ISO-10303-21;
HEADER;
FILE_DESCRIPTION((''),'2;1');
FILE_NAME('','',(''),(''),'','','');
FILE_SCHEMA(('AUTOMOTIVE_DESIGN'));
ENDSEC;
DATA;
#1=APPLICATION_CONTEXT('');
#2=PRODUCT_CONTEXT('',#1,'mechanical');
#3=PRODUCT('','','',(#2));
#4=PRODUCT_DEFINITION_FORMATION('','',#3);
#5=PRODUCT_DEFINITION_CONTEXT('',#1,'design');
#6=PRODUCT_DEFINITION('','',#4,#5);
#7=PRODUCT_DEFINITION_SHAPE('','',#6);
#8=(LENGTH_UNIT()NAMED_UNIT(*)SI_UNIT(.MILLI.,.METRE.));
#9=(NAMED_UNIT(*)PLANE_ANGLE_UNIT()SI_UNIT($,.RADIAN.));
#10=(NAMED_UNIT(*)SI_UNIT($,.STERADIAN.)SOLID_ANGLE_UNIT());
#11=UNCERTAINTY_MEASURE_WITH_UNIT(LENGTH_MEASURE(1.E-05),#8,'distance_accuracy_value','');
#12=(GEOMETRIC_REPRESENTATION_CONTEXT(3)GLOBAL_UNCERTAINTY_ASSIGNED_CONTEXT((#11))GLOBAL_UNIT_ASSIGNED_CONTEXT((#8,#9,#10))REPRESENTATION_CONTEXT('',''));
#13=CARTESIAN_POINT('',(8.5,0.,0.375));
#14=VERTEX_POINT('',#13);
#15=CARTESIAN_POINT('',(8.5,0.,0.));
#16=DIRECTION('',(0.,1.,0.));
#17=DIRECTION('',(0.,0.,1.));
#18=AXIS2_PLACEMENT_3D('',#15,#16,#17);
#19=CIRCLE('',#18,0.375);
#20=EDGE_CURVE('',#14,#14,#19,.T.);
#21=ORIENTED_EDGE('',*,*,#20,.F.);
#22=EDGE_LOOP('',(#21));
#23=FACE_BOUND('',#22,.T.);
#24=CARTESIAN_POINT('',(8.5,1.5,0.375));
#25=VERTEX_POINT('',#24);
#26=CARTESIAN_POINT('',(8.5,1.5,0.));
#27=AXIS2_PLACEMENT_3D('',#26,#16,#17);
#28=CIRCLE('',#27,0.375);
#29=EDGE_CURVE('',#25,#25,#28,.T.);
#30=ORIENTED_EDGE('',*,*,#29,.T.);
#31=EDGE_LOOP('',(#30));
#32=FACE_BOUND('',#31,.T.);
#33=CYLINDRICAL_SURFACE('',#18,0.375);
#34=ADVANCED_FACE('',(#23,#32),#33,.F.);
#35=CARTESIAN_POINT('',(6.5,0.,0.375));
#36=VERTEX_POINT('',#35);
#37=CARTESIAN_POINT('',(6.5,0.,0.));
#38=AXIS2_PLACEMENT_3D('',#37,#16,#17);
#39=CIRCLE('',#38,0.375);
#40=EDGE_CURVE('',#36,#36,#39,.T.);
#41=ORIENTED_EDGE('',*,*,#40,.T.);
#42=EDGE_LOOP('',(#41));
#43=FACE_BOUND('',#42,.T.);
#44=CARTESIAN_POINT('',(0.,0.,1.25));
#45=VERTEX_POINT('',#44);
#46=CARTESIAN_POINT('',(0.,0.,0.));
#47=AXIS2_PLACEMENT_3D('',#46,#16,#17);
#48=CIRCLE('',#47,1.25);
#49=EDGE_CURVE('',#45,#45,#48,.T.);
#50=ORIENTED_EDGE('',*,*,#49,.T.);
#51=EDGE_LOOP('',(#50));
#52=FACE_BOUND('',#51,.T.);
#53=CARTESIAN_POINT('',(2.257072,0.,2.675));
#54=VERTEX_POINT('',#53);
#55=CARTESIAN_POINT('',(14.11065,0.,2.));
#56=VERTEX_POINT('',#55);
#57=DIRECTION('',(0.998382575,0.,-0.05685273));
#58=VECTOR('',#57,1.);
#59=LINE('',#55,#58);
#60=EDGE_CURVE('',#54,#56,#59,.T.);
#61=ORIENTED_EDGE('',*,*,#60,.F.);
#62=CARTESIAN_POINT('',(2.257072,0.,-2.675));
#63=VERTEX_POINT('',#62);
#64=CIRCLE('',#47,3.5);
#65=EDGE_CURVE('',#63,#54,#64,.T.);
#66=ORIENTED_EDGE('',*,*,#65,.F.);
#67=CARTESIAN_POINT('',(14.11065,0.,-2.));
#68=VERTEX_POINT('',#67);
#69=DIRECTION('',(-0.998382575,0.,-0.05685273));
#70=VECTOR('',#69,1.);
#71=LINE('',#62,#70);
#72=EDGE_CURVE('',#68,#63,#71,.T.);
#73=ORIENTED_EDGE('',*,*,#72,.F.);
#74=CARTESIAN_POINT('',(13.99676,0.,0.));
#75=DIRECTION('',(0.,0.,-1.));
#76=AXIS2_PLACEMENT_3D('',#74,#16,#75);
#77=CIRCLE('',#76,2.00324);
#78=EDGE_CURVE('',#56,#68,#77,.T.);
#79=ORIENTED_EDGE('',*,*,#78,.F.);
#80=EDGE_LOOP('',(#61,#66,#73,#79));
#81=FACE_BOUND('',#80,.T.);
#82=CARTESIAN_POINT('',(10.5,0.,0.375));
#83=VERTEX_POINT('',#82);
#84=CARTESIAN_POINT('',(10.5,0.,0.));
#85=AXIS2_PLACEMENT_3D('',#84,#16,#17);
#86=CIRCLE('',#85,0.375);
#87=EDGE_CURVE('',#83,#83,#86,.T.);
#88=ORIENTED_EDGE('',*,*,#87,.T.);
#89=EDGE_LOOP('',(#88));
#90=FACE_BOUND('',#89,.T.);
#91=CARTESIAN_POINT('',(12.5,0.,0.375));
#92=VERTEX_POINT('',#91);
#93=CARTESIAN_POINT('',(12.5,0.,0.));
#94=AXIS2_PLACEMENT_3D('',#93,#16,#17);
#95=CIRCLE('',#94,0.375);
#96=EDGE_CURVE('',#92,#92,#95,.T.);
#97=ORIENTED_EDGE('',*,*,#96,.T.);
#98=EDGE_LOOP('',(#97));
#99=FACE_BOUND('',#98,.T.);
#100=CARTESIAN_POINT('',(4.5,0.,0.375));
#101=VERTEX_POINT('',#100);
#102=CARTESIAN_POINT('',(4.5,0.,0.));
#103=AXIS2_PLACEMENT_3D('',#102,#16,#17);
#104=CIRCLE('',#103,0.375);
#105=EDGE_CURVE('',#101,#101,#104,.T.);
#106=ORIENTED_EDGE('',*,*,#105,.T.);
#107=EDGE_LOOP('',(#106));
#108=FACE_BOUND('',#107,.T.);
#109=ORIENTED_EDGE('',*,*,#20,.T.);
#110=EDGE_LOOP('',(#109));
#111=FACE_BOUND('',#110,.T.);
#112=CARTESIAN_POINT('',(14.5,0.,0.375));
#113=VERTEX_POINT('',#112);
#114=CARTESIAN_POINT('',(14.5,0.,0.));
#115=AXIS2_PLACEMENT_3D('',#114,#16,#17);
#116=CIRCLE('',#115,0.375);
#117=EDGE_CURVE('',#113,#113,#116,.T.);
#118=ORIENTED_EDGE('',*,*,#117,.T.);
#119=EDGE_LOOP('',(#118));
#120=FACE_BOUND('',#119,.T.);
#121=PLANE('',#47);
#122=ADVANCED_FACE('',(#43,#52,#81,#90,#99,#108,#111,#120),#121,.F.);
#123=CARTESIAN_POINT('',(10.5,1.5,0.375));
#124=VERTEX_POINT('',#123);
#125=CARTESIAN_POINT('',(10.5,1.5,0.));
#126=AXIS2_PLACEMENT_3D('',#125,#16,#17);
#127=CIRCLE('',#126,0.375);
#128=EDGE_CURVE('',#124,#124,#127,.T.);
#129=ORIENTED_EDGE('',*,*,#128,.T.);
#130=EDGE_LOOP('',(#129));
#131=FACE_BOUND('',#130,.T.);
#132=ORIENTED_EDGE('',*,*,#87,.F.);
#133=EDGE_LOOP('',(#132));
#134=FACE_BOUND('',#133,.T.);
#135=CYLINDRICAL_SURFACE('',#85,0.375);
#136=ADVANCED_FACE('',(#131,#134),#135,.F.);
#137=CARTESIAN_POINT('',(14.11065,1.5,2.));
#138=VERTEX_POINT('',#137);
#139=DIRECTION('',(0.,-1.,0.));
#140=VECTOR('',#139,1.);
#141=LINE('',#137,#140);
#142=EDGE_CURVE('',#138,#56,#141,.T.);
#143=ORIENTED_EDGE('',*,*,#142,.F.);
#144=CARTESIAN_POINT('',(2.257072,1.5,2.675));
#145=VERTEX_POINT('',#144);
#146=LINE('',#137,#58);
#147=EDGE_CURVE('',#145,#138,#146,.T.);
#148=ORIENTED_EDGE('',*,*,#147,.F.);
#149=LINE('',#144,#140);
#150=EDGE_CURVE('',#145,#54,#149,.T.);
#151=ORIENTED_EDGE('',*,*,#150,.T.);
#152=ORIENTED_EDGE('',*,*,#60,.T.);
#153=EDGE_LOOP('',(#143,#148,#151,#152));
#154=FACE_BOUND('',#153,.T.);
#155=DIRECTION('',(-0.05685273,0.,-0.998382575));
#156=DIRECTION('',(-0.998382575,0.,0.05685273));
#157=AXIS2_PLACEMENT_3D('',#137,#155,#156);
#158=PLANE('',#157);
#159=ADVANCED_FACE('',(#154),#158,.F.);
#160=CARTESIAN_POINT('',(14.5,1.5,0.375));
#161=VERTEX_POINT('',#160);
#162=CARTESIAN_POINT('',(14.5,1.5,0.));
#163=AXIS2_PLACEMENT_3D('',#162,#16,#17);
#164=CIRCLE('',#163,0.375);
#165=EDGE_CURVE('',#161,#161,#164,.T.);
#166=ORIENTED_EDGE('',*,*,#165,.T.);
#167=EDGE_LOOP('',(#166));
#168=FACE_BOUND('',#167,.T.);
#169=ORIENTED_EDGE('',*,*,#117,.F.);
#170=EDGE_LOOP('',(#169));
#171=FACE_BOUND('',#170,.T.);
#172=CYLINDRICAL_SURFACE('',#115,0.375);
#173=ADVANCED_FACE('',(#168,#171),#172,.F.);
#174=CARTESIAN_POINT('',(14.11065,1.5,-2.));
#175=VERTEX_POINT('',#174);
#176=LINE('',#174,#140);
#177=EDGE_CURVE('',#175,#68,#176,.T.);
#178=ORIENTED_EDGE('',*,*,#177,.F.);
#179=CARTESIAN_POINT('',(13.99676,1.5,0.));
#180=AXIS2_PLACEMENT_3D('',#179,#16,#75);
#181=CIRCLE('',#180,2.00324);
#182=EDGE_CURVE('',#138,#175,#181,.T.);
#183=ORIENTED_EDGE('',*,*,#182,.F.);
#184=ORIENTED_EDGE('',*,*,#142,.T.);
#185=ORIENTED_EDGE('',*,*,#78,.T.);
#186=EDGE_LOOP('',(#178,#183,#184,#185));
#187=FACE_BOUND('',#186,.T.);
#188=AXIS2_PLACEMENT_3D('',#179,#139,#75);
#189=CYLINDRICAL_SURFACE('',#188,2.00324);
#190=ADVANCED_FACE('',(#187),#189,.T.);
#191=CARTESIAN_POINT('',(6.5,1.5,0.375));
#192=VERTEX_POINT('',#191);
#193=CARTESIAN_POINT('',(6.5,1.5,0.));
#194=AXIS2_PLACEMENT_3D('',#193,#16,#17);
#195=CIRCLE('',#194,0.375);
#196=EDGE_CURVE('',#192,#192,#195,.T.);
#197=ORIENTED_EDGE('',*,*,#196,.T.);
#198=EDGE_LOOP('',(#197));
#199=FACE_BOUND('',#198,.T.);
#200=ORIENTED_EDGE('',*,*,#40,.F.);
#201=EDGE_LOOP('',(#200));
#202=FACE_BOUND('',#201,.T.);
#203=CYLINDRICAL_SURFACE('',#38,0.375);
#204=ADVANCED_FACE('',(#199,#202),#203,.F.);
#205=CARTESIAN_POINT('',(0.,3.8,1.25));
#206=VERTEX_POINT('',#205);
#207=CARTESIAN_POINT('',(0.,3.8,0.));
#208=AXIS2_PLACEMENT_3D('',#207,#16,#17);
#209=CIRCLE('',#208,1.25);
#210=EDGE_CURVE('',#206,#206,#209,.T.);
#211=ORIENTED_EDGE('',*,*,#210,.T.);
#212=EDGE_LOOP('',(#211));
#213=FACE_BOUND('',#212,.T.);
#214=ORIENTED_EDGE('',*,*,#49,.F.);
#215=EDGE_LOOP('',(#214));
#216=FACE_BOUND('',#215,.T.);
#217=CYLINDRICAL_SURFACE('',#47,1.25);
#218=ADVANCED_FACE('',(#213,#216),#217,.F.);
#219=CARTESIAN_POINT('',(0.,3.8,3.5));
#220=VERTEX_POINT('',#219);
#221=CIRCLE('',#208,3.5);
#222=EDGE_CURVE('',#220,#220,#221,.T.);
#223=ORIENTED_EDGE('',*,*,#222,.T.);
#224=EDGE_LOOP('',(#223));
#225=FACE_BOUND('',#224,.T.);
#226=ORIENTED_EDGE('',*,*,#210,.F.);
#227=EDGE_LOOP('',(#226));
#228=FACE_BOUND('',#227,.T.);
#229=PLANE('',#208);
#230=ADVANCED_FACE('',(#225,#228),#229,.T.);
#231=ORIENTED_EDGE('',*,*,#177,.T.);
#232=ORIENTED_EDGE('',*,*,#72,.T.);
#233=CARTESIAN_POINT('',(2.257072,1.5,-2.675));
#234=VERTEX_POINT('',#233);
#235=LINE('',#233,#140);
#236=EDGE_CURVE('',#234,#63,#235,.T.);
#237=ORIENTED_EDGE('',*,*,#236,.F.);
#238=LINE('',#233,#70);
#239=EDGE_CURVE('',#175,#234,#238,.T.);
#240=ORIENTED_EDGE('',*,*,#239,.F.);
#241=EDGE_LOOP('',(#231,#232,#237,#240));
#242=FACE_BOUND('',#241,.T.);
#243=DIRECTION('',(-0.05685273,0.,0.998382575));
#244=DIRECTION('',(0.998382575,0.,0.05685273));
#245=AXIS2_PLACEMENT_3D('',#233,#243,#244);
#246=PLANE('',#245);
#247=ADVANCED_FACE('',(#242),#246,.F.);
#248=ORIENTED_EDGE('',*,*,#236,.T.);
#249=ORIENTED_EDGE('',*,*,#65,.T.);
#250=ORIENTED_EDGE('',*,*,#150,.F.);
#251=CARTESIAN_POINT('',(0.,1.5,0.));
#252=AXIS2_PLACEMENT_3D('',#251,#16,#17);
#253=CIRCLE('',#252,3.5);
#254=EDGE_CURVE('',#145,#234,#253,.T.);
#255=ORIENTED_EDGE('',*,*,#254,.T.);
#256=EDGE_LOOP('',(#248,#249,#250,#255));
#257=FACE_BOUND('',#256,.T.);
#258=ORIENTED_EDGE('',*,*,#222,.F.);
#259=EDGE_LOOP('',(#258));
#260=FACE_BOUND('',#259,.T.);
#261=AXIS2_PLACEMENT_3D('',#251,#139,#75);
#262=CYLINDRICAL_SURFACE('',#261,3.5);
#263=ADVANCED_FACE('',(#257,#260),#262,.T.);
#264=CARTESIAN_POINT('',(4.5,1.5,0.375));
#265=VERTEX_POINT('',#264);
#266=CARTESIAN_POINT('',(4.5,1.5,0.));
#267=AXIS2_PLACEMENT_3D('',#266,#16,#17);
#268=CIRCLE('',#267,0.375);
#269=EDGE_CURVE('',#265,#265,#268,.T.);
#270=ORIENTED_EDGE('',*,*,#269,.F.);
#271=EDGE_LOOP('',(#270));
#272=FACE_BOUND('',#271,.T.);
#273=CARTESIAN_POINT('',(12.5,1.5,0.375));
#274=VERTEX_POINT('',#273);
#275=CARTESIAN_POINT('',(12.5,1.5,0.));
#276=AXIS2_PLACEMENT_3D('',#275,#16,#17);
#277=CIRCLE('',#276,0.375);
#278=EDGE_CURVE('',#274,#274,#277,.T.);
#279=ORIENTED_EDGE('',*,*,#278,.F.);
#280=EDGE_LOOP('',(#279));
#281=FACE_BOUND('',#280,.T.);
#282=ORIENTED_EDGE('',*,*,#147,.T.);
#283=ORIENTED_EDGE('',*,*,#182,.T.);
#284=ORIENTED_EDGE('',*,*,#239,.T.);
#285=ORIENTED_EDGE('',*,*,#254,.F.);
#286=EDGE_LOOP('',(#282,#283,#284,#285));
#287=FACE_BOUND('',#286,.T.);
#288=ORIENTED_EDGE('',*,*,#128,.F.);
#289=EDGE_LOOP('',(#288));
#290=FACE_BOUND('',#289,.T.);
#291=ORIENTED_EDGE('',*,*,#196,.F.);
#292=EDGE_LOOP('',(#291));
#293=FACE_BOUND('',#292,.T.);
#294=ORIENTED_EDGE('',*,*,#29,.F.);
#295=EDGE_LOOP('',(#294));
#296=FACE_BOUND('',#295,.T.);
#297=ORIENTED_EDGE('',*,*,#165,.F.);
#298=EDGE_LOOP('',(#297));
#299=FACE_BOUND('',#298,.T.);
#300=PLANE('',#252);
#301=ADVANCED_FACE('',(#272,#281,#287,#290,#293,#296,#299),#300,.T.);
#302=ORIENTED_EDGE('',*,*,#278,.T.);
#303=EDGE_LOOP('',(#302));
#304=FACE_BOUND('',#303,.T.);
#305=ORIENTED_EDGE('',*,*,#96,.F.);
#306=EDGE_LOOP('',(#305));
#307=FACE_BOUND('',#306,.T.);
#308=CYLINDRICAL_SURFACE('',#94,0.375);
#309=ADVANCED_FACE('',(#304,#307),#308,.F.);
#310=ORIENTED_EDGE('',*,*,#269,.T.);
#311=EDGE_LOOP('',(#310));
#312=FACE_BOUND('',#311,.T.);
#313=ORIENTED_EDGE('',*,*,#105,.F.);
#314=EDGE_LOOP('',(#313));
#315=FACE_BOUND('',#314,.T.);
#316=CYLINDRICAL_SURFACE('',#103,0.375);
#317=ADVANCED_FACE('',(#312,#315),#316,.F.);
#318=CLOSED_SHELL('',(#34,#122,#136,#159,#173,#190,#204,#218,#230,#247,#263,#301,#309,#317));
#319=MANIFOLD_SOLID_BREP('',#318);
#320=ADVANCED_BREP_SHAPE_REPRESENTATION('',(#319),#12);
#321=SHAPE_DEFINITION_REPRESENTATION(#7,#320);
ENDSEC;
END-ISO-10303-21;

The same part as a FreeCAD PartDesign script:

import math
import FreeCAD as App
import Part
import Sketcher

doc = App.newDocument("Part")
params = doc.addObject("Spreadsheet::Sheet", "Params")
for row, (alias, value) in enumerate([
    ("sketch1_radius", "3.5 mm"),
    ("pad1_length", "1.5 mm"),
    ("sketch2_diameter", "7 mm"),
    ("pad2_length", "2.3 mm"),
    ("sketch3_diameter", "2.5 mm"),
    ("sketch3_diameter2", "0.75 mm"),
], start=1):
    params.set(f"A{row}", alias)
    params.set(f"B{row}", "=" + value)
    params.setAlias(f"B{row}", alias)

body = doc.addObject("PartDesign::Body", "Body")

# Sketch on XZ plane
sketch1 = body.newObject("Sketcher::SketchObject", "Sketch")
sketch1.AttachmentSupport = (doc.getObject("XZ_Plane"), [""])
sketch1.MapMode = "FlatFace"
sketch1.addGeometry(Part.LineSegment(App.Vector(14.11065, -2, 0), App.Vector(2.257072, -2.675, 0)), False)
sketch1.addGeometry(Part.ArcOfCircle(Part.Circle(App.Vector(0, 0, 0), App.Vector(0, 0, 1), 3.5), math.radians(49.843488), math.radians(310.156512)), False)
sketch1.addGeometry(Part.LineSegment(App.Vector(2.257072, 2.675, 0), App.Vector(14.11065, 2, 0)), False)
sketch1.addGeometry(Part.ArcOfCircle(Part.Circle(App.Vector(13.99676, 0, 0), App.Vector(0, 0, 1), 2.00324), math.radians(-86.740821), math.radians(86.740821)), False)
sketch1.addConstraint(Sketcher.Constraint("Coincident", 0, 2, 1, 2))
sketch1.addConstraint(Sketcher.Constraint("Coincident", 1, 1, 2, 1))
sketch1.addConstraint(Sketcher.Constraint("Coincident", 2, 2, 3, 2))
sketch1.addConstraint(Sketcher.Constraint("Coincident", 3, 1, 0, 1))
sketch1.addConstraint(Sketcher.Constraint("Coincident", 1, 3, -1, 1))
sketch1.addConstraint(Sketcher.Constraint("PointOnObject", 3, 3, -1))
sketch1.addConstraint(Sketcher.Constraint("Radius", 1, 3.5))
sketch1.addConstraint(Sketcher.Constraint("DistanceY", -1, 1, 2, 2, 2.0))
sketch1.addConstraint(Sketcher.Constraint("DistanceY", 3, 1, -1, 1, 2.0))
sketch1.addConstraint(Sketcher.Constraint("Radius", 3, 2.00324))
sketch1.addConstraint(Sketcher.Constraint("DistanceY", 0, 2, 1, 1, 5.35))
sketch1.addConstraint(Sketcher.Constraint("DistanceY", 0, 2, -1, 1, 2.675))
sketch1.addConstraint(Sketcher.Constraint("Distance", 0, 11.872781))
sketch1.setExpression("Constraints[6]", "Params.sketch1_radius")
pad1 = body.newObject("PartDesign::Pad", "Pad")
pad1.Profile = sketch1
pad1.setExpression("Length", "Params.pad1_length")
pad1.Reversed = True

# Sketch on XZ plane
sketch2 = body.newObject("Sketcher::SketchObject", "Sketch001")
sketch2.AttachmentSupport = (doc.getObject("XZ_Plane"), [""])
sketch2.MapMode = "FlatFace"
sketch2.AttachmentOffset = App.Placement(App.Vector(0, 0, -1.5), App.Rotation())
sketch2.addGeometry(Part.Circle(App.Vector(0, 0, 0), App.Vector(0, 0, 1), 3.5), False)
sketch2.addConstraint(Sketcher.Constraint("Coincident", 0, 3, -1, 1))
sketch2.addConstraint(Sketcher.Constraint("Diameter", 0, 7.0))
sketch2.setExpression("Constraints[1]", "Params.sketch2_diameter")
pad2 = body.newObject("PartDesign::Pad", "Pad001")
pad2.Profile = sketch2
pad2.setExpression("Length", "Params.pad2_length")
pad2.Reversed = True

# Sketch on XZ plane
sketch3 = body.newObject("Sketcher::SketchObject", "Sketch002")
sketch3.AttachmentSupport = (doc.getObject("XZ_Plane"), [""])
sketch3.MapMode = "FlatFace"
sketch3.AttachmentOffset = App.Placement(App.Vector(0, 0, -1.5), App.Rotation())
sketch3.addGeometry(Part.Circle(App.Vector(4.5, 0, 0), App.Vector(0, 0, 1), 0.375), False)
sketch3.addGeometry(Part.Circle(App.Vector(0, 0, 0), App.Vector(0, 0, 1), 1.25), False)
sketch3.addGeometry(Part.Circle(App.Vector(6.5, 0, 0), App.Vector(0, 0, 1), 0.375), False)
sketch3.addGeometry(Part.Circle(App.Vector(8.5, 0, 0), App.Vector(0, 0, 1), 0.375), False)
sketch3.addGeometry(Part.Circle(App.Vector(10.5, 0, 0), App.Vector(0, 0, 1), 0.375), False)
sketch3.addGeometry(Part.Circle(App.Vector(12.5, 0, 0), App.Vector(0, 0, 1), 0.375), False)
sketch3.addGeometry(Part.Circle(App.Vector(14.5, 0, 0), App.Vector(0, 0, 1), 0.375), False)
sketch3.addConstraint(Sketcher.Constraint("Coincident", 1, 3, -1, 1))
sketch3.addConstraint(Sketcher.Constraint("Equal", 0, 2))
sketch3.addConstraint(Sketcher.Constraint("Equal", 2, 3))
sketch3.addConstraint(Sketcher.Constraint("Equal", 3, 4))
sketch3.addConstraint(Sketcher.Constraint("Equal", 4, 5))
sketch3.addConstraint(Sketcher.Constraint("Equal", 5, 6))
sketch3.addConstraint(Sketcher.Constraint("PointOnObject", 0, 3, -1))
sketch3.addConstraint(Sketcher.Constraint("PointOnObject", 2, 3, -1))
sketch3.addConstraint(Sketcher.Constraint("PointOnObject", 3, 3, -1))
sketch3.addConstraint(Sketcher.Constraint("PointOnObject", 4, 3, -1))
sketch3.addConstraint(Sketcher.Constraint("PointOnObject", 5, 3, -1))
sketch3.addConstraint(Sketcher.Constraint("PointOnObject", 6, 3, -1))
sketch3.addConstraint(Sketcher.Constraint("Diameter", 1, 2.5))
sketch3.addConstraint(Sketcher.Constraint("Diameter", 0, 0.75))
sketch3.addConstraint(Sketcher.Constraint("DistanceX", 0, 3, 2, 3, 2.0))
sketch3.addConstraint(Sketcher.Constraint("DistanceX", 2, 3, 3, 3, 2.0))
sketch3.addConstraint(Sketcher.Constraint("DistanceX", 3, 3, 4, 3, 2.0))
sketch3.addConstraint(Sketcher.Constraint("DistanceX", 4, 3, 5, 3, 2.0))
sketch3.addConstraint(Sketcher.Constraint("DistanceX", 5, 3, 6, 3, 2.0))
sketch3.addConstraint(Sketcher.Constraint("DistanceX", -1, 1, 0, 3, 4.5))
sketch3.setExpression("Constraints[12]", "Params.sketch3_diameter")
sketch3.setExpression("Constraints[13]", "Params.sketch3_diameter2")
pocket1 = body.newObject("PartDesign::Pocket", "Pocket")
pocket1.Profile = sketch3
pocket1.Type = "ThroughAll"
pocket1.Midplane = True

doc.recompute()
